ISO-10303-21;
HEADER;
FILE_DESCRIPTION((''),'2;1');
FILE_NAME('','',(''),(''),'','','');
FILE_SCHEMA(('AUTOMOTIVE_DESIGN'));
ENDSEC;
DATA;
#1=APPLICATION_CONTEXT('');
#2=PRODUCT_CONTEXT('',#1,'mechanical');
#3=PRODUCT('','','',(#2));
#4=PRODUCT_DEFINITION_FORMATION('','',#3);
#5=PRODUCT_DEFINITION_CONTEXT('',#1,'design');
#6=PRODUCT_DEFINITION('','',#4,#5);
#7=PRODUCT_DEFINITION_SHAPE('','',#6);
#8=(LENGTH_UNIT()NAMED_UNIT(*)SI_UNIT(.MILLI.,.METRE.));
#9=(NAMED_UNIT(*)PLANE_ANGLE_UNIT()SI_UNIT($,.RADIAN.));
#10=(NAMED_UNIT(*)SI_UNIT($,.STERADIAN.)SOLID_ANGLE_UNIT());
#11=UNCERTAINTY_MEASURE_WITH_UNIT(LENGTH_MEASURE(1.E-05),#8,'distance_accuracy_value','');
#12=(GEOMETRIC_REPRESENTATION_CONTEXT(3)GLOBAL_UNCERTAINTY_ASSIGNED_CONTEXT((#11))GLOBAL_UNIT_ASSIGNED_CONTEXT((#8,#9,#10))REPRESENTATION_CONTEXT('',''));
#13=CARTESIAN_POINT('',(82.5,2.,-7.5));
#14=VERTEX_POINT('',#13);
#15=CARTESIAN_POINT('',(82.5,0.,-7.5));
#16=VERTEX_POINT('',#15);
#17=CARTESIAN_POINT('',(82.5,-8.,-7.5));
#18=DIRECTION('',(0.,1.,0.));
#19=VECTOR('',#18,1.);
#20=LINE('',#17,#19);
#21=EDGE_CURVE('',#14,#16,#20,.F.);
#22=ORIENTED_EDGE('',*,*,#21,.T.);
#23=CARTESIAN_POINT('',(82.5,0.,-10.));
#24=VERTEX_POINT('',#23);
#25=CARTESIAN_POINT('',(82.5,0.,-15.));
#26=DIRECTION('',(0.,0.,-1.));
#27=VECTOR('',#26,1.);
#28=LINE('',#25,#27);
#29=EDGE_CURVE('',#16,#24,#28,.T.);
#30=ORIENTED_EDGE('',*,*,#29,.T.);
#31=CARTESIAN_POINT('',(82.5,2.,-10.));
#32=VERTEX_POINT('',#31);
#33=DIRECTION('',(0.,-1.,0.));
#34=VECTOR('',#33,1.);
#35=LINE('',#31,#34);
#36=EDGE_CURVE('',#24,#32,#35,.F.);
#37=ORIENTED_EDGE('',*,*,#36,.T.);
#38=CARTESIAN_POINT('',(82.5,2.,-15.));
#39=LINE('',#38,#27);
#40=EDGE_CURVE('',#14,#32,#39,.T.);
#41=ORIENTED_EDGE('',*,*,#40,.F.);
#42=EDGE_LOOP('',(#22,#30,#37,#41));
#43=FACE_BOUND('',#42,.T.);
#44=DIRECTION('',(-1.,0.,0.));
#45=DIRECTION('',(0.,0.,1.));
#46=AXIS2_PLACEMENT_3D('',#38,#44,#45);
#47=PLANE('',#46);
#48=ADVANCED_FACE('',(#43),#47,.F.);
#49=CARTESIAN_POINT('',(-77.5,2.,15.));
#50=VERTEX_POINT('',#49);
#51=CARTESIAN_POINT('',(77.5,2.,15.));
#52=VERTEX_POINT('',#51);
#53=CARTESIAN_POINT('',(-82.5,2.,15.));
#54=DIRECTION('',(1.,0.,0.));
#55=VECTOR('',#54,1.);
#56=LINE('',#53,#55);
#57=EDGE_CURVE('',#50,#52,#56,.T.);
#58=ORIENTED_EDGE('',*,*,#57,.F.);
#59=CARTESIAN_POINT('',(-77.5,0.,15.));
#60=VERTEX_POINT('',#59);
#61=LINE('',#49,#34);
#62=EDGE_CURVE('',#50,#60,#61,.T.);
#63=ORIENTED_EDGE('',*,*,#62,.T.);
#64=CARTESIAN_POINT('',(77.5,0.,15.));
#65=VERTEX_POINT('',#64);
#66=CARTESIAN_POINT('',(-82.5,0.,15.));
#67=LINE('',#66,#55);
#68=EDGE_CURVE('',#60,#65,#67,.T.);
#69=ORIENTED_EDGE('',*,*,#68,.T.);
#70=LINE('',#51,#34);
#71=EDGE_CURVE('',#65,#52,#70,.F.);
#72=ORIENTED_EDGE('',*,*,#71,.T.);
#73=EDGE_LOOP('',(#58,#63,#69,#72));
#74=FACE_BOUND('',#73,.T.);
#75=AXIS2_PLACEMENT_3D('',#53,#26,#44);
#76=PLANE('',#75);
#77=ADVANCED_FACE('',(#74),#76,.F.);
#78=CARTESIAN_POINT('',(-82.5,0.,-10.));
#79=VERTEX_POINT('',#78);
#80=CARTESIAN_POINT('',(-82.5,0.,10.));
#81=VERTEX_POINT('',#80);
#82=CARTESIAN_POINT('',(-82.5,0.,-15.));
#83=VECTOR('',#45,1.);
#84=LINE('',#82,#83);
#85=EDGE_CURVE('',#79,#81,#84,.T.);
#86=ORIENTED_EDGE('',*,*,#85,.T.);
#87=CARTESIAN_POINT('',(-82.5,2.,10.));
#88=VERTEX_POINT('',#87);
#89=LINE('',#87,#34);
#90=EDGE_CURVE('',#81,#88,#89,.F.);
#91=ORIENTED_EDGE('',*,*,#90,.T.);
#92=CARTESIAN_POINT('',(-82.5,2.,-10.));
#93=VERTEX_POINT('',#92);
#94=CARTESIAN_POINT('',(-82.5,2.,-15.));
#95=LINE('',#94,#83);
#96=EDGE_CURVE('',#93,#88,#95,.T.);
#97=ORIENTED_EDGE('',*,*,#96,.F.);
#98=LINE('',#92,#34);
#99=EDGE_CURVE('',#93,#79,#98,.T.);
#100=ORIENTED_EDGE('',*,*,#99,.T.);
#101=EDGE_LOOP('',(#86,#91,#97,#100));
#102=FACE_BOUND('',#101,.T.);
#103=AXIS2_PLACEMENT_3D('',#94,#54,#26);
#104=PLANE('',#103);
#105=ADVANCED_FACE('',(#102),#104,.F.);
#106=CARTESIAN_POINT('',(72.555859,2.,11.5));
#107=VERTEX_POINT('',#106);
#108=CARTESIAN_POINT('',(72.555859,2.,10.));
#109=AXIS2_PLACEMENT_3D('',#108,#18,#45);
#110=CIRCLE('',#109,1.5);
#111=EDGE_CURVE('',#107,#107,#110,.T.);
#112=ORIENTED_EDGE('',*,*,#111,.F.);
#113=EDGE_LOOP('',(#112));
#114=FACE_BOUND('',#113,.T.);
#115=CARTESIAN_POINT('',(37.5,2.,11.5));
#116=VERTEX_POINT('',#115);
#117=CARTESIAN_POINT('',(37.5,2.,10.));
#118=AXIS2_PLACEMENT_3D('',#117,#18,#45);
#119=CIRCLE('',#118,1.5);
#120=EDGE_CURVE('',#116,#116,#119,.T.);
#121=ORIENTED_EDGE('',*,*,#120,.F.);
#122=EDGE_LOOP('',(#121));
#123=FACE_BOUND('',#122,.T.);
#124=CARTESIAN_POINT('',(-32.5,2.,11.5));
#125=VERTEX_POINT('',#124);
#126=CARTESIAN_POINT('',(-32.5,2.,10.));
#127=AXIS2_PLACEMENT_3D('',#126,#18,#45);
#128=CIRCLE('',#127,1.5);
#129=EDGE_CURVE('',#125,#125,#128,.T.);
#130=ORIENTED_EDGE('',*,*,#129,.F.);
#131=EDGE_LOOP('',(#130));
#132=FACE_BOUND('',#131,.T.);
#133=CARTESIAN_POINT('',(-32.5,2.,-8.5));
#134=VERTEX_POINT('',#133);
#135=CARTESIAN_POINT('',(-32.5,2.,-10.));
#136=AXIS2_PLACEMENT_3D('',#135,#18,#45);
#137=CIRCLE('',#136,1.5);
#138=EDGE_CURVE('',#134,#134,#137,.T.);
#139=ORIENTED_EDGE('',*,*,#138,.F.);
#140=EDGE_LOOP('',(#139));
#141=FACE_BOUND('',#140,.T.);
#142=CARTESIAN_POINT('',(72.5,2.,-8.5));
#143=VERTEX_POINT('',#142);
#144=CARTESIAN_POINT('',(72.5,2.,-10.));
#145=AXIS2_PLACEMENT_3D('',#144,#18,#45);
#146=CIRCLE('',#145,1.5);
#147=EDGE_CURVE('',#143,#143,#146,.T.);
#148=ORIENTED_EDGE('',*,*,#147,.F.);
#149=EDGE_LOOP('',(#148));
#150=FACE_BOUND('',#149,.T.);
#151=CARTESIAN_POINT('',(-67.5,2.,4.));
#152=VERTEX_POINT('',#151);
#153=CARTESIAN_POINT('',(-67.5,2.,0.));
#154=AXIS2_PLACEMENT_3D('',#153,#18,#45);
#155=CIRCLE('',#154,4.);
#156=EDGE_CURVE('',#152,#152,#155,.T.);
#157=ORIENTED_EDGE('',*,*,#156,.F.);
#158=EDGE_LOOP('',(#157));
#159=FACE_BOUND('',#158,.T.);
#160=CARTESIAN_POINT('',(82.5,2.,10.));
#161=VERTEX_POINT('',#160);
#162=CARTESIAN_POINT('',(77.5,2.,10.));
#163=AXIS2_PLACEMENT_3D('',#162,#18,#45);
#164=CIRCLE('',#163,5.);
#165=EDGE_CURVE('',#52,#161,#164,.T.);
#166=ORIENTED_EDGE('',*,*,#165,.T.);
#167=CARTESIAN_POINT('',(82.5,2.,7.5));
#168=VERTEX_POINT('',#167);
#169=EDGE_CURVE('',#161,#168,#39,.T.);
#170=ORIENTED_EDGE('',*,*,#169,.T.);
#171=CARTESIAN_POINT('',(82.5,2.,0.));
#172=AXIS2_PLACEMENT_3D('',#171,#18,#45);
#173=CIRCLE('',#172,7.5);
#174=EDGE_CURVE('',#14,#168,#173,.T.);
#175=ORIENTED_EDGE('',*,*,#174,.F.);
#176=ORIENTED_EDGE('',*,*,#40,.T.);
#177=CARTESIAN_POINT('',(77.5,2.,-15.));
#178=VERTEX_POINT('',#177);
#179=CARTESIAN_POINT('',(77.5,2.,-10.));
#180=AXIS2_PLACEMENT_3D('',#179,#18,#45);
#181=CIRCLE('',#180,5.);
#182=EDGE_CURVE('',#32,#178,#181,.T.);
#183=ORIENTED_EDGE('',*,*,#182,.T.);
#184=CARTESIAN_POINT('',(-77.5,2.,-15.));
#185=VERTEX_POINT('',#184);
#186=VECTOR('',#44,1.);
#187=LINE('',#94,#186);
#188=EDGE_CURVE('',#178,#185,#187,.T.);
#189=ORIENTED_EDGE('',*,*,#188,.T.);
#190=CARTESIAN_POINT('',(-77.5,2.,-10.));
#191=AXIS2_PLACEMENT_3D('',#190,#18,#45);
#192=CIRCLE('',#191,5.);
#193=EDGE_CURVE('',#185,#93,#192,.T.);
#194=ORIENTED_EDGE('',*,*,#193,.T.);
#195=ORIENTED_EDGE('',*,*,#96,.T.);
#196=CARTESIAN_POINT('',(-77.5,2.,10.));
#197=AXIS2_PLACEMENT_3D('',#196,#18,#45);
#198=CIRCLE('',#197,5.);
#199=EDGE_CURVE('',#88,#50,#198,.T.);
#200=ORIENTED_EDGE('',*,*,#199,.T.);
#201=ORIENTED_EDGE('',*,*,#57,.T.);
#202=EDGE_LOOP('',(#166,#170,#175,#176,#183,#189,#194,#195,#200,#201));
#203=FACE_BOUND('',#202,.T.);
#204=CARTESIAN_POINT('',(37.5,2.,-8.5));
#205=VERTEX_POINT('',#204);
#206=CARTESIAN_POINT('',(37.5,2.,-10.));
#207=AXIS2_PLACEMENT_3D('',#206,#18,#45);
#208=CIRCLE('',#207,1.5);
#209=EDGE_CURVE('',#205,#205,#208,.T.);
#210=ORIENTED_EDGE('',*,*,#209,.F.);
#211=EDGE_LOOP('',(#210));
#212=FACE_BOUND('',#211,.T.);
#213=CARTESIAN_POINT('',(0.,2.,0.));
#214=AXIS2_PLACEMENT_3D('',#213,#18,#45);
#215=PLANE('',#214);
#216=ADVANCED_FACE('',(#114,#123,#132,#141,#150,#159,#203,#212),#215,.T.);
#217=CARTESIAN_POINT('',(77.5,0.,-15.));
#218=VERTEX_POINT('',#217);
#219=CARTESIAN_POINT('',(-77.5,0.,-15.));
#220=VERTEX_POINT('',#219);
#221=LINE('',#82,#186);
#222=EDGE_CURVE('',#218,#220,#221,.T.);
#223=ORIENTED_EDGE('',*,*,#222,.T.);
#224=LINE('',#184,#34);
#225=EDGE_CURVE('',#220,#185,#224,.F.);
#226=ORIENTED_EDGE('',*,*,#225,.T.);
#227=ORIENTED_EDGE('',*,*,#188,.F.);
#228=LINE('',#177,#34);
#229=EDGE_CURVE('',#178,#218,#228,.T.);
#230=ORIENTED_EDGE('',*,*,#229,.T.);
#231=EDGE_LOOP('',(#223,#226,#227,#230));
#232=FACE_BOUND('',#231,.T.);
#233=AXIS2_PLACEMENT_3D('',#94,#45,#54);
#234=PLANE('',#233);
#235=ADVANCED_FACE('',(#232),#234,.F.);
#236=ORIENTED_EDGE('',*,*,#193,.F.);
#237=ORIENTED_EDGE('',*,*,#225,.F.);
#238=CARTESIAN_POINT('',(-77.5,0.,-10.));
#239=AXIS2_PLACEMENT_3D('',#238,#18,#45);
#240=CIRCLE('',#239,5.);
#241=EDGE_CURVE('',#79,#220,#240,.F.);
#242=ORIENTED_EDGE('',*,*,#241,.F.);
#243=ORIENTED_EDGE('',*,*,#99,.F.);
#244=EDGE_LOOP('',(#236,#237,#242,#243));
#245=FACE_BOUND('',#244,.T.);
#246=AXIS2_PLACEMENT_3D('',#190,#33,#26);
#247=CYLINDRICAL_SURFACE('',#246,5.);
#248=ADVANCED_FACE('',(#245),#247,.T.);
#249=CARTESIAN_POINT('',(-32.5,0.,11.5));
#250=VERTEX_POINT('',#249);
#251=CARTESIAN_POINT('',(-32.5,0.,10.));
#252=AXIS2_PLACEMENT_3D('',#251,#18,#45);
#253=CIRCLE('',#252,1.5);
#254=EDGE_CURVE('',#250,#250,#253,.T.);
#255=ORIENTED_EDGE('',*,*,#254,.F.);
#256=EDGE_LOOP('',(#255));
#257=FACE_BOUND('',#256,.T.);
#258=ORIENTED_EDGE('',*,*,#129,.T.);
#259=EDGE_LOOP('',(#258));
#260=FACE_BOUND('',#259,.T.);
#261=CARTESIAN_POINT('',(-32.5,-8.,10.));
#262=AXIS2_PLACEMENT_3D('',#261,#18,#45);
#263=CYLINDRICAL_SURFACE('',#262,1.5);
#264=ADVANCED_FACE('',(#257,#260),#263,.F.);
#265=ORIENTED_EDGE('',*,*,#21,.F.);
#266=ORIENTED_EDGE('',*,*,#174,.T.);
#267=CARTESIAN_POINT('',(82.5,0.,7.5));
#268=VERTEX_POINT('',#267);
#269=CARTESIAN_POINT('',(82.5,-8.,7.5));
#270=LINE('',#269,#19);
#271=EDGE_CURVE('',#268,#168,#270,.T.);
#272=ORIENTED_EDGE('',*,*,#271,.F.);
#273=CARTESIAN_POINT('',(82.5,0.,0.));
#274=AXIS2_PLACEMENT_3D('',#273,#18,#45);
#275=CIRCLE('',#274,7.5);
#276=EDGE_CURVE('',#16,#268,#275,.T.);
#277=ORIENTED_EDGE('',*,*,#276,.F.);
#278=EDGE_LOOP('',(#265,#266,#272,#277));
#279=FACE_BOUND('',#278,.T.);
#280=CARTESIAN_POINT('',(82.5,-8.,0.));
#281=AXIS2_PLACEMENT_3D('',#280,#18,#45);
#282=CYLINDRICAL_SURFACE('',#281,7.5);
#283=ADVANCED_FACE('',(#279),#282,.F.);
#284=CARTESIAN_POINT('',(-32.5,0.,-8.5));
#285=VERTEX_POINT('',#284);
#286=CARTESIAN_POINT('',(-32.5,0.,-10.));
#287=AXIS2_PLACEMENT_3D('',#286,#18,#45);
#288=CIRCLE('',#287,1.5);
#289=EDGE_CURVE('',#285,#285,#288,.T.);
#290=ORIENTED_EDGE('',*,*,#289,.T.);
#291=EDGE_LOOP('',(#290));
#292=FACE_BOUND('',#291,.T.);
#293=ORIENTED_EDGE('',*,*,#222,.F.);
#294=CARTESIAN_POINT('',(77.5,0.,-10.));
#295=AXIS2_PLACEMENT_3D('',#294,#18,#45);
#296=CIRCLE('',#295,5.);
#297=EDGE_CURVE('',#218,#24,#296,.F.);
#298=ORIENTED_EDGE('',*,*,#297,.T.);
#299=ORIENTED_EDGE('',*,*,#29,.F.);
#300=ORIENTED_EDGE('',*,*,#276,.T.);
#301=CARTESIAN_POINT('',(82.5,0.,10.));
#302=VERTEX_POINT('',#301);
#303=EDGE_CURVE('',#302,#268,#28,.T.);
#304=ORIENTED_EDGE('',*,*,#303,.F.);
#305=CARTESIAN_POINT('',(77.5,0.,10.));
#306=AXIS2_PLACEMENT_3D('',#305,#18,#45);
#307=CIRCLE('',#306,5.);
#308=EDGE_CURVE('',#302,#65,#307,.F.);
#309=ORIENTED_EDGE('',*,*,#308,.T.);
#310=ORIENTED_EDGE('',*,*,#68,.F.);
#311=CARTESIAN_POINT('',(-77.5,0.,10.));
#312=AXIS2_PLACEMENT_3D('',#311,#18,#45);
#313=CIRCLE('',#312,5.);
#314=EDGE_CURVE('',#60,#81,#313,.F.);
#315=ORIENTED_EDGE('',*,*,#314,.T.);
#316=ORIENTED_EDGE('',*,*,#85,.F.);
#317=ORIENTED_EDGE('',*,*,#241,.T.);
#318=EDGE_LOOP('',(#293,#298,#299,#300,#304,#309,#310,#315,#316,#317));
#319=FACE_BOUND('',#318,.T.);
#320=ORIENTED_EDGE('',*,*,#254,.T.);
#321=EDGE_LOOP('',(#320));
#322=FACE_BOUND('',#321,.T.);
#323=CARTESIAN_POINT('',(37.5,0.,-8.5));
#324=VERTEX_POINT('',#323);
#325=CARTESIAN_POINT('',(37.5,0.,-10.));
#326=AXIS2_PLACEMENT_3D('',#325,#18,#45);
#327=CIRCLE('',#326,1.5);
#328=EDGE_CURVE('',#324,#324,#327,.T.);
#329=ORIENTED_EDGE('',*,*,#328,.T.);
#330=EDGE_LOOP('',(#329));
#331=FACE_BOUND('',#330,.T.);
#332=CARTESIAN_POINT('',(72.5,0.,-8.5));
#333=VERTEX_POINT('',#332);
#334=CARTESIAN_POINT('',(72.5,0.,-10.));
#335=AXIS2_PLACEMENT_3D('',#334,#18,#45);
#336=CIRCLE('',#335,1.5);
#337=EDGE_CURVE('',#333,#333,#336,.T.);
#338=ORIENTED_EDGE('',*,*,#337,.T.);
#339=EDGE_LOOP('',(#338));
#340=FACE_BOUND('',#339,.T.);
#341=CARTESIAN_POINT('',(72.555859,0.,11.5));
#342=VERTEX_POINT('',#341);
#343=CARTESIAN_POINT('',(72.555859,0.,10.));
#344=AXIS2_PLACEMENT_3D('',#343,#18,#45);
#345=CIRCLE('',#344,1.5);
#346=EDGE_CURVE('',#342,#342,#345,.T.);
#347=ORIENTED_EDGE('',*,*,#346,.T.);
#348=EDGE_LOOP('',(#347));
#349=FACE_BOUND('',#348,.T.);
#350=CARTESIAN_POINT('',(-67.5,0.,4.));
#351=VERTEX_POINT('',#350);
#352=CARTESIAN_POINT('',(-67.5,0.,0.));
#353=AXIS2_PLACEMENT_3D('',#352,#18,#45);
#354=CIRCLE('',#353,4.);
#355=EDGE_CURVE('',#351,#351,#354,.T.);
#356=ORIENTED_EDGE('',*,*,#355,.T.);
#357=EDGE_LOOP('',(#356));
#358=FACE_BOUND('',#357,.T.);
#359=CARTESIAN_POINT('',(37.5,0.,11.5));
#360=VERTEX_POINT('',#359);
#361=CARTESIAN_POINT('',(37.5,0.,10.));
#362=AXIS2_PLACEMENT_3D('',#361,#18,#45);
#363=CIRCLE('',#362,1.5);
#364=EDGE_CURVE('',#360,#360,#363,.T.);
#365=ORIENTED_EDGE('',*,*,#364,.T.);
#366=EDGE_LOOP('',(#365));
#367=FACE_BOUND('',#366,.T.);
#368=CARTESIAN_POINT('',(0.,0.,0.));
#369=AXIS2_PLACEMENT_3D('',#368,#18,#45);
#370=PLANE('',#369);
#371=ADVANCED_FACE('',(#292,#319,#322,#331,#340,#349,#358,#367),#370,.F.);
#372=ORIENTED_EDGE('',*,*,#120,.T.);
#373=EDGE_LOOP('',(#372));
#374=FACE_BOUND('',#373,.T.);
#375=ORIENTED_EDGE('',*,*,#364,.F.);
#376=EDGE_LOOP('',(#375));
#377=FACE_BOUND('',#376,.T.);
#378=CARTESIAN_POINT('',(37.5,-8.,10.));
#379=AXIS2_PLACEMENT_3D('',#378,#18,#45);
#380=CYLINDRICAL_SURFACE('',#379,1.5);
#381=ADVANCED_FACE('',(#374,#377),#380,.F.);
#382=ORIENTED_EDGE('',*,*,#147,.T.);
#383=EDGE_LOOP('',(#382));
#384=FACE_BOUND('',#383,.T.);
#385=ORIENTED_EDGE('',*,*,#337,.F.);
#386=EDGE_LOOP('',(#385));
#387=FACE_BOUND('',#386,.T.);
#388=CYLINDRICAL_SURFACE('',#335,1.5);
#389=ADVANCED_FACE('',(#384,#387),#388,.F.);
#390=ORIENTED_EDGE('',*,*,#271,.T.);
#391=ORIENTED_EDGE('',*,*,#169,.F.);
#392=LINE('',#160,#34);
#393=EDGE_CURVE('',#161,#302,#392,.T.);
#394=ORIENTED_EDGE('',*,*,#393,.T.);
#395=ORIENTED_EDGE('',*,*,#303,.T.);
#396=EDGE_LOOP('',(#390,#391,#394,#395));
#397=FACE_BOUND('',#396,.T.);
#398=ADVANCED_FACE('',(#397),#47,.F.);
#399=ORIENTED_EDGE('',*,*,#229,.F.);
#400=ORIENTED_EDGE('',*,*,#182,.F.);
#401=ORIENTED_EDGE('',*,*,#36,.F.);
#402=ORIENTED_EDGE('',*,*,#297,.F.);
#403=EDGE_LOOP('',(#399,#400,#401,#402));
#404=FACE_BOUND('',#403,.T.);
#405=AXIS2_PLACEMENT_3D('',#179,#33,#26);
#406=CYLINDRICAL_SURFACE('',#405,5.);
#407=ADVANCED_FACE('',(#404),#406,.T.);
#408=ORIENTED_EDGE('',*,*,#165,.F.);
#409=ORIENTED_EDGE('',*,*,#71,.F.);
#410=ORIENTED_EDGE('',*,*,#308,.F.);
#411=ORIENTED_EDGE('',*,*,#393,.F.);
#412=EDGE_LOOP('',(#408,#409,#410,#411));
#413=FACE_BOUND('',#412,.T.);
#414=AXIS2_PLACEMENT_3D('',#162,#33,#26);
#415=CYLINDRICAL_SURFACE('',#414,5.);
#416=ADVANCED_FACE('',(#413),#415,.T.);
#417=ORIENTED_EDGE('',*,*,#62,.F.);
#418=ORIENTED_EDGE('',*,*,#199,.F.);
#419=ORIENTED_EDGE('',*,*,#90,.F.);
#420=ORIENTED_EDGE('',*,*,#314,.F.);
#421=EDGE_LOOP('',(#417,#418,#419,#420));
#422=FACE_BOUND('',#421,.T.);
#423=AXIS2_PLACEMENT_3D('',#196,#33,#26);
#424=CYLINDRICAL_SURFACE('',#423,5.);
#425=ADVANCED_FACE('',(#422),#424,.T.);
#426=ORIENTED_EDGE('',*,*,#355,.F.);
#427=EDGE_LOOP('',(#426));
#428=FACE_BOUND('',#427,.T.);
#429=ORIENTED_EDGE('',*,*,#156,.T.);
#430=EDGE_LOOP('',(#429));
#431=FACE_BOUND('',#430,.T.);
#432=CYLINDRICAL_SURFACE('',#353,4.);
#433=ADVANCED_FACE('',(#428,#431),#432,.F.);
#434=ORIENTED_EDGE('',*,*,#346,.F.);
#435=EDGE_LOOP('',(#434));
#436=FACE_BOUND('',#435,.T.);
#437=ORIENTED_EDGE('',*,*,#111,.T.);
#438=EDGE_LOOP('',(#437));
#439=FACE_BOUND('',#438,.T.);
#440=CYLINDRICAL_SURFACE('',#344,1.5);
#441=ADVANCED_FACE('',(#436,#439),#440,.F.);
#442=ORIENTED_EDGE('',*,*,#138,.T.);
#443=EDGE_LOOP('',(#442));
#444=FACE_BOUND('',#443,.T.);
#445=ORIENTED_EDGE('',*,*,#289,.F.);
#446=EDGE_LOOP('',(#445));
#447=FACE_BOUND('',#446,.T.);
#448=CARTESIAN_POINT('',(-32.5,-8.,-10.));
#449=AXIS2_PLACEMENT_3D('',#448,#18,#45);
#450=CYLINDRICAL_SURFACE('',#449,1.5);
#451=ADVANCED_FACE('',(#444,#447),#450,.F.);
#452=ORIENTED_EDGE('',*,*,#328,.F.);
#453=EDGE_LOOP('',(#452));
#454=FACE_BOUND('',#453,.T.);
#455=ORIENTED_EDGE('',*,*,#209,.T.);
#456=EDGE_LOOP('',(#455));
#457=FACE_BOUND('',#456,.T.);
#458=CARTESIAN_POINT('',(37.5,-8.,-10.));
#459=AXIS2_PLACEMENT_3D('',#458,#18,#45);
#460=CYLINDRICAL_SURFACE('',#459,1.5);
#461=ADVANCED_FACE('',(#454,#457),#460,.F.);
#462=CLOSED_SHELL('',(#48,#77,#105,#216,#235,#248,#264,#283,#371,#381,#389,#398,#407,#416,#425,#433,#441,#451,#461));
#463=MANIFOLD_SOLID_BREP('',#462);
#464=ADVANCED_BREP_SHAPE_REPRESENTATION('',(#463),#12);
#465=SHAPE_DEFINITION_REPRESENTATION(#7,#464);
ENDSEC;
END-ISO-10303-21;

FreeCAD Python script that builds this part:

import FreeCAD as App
import Part
import Sketcher
from FreeCAD import Vector
Q = App.Units.Quantity


def edges_at(feature, points):
    """Names of the edges that pass closest to the given points."""
    edges = feature.Shape.Edges
    near = lambda p: min(range(len(edges)), key=lambda i: edges[i].distToShape(Part.Vertex(*p))[0])
    return sorted({f"Edge{near(p) + 1}" for p in points})


def add_polygon(sketch, points):
    """Adds a closed chain of lines whose ends are joined by coincident constraints."""
    first, n = sketch.GeometryCount, len(points)
    for a, b in zip(points, points[1:] + points[:1]):
        sketch.addGeometry(Part.LineSegment(App.Vector(*a, 0), App.Vector(*b, 0)), False)
    for i in range(n):
        sketch.addConstraint(Sketcher.Constraint("Coincident", first + i, 2, first + (i + 1) % n, 1))

doc = App.newDocument("Part")
body = doc.addObject("PartDesign::Body", "Body")

sketch1 = body.newObject("Sketcher::SketchObject", "Sketch")
sketch1.AttachmentSupport = (doc.getObject("XZ_Plane"), [""])
sketch1.MapMode = "FlatFace"
add_polygon(sketch1, [(-82.5, -15), (-82.5, 15), (82.5, 15), (82.5, -15)])
sketch1.addConstraint([
    Sketcher.Constraint("Vertical", 0),
    Sketcher.Constraint("Horizontal", 1),
    Sketcher.Constraint("Vertical", 2),
    Sketcher.Constraint("Horizontal", 3),
    Sketcher.Constraint("Symmetric", 0, 2, 2, 2, -1, 1),
    Sketcher.Constraint("DistanceX", 1, 1, 1, 2, Q("165 mm")),
    Sketcher.Constraint("DistanceY", 0, 1, 0, 2, Q("30 mm")),
])
pad1 = body.newObject("PartDesign::Pad", "Pad")
pad1.Profile = sketch1
pad1.Length = 2
pad1.Reversed = True
doc.recompute()

fillet = body.newObject("PartDesign::Fillet", "Fillet")
fillet.Base = (pad1, edges_at(pad1, [
    (82.5, 1, 15),
    (-82.5, 1, 15),
    (-82.5, 1, -15),
    (82.5, 1, -15),
]))
fillet.Radius = 5

sketch2 = body.newObject("Sketcher::SketchObject", "Sketch001")
sketch2.AttachmentSupport = (doc.getObject("XZ_Plane"), [""])
sketch2.MapMode = "FlatFace"
sketch2.AttachmentOffset = App.Placement(Vector(0, 0, -2), App.Rotation())
sketch2.addGeometry(Part.Circle(Vector(-67.5, 0, 0), Vector(0, 0, 1), 4), False)
sketch2.addConstraint([
    Sketcher.Constraint("PointOnObject", 0, 3, -1),
    Sketcher.Constraint("Diameter", 0, Q("8 mm")),
    Sketcher.Constraint("DistanceX", 0, 3, -1, 1, Q("67.5 mm")),
])
pocket1 = body.newObject("PartDesign::Pocket", "Pocket")
pocket1.Profile = sketch2
pocket1.Length = 2
pocket1.Reversed = True

sketch3 = body.newObject("Sketcher::SketchObject", "Sketch002")
sketch3.AttachmentSupport = (doc.getObject("XZ_Plane"), [""])
sketch3.MapMode = "FlatFace"
sketch3.AttachmentOffset = App.Placement(Vector(0, 0, -2), App.Rotation())
sketch3.addGeometry(Part.Circle(Vector(82.5, 0, 0), Vector(0, 0, 1), 7.5), False)
sketch3.addConstraint([
    Sketcher.Constraint("PointOnObject", 0, 3, -1),
    Sketcher.Constraint("Diameter", 0, Q("15 mm")),
    Sketcher.Constraint("DistanceX", -1, 1, 0, 3, Q("82.5 mm")),
])
pocket2 = body.newObject("PartDesign::Pocket", "Pocket001")
pocket2.Profile = sketch3
pocket2.Length = 10
pocket2.Reversed = True

sketch4 = body.newObject("Sketcher::SketchObject", "Sketch003")
sketch4.AttachmentSupport = (doc.getObject("XZ_Plane"), [""])
sketch4.MapMode = "FlatFace"
sketch4.AttachmentOffset = App.Placement(Vector(0, 0, -2), App.Rotation())
sketch4.addGeometry([
    Part.Circle(Vector(-32.5, -10, 0), Vector(0, 0, 1), 1.5),
    Part.Circle(Vector(37.5, -10, 0), Vector(0, 0, 1), 1.5),
    Part.Circle(Vector(-32.5, 10, 0), Vector(0, 0, 1), 1.5),
    Part.Circle(Vector(37.5, 10, 0), Vector(0, 0, 1), 1.5),
], False)
sketch4.addConstraint([
    Sketcher.Constraint("Equal", 0, 1),
    Sketcher.Constraint("Equal", 1, 2),
    Sketcher.Constraint("Equal", 2, 3),
    Sketcher.Constraint("Symmetric", 0, 3, 2, 3, -1),
    Sketcher.Constraint("Symmetric", 1, 3, 3, 3, -1),
    Sketcher.Constraint("Horizontal", 0, 3, 1, 3),
    Sketcher.Constraint("Diameter", 0, Q("3 mm")),
    Sketcher.Constraint("DistanceY", 0, 3, -1, 1, Q("10 mm")),
    Sketcher.Constraint("DistanceX", 0, 3, 1, 3, Q("70 mm")),
    Sketcher.Constraint("DistanceX", 0, 3, -1, 1, Q("32.5 mm")),
])
pocket3 = body.newObject("PartDesign::Pocket", "Pocket002")
pocket3.Profile = sketch4
pocket3.Length = 10
pocket3.Reversed = True

sketch5 = body.newObject("Sketcher::SketchObject", "Sketch004")
sketch5.AttachmentSupport = (doc.getObject("XZ_Plane"), [""])
sketch5.MapMode = "FlatFace"
sketch5.AttachmentOffset = App.Placement(Vector(0, 0, -2), App.Rotation())
sketch5.addGeometry([
    Part.Circle(Vector(72.5, -10, 0), Vector(0, 0, 1), 1.5),
    Part.Circle(Vector(72.555859, 10, 0), Vector(0, 0, 1), 1.5),
], False)
sketch5.addConstraint([
    Sketcher.Constraint("Equal", 0, 1),
    Sketcher.Constraint("Diameter", 0, Q("3 mm")),
    Sketcher.Constraint("DistanceY", 0, 3, -1, 1, Q("10 mm")),
    Sketcher.Constraint("DistanceY", -1, 1, 1, 3, Q("10 mm")),
    Sketcher.Constraint("DistanceX", -1, 1, 0, 3, Q("72.5 mm")),
    Sketcher.Constraint("DistanceX", -1, 1, 1, 3, Q("72.555859 mm")),
])
pocket4 = body.newObject("PartDesign::Pocket", "Pocket003")
pocket4.Profile = sketch5
pocket4.Type = "ThroughAll"
pocket4.Reversed = True

doc.recompute()
